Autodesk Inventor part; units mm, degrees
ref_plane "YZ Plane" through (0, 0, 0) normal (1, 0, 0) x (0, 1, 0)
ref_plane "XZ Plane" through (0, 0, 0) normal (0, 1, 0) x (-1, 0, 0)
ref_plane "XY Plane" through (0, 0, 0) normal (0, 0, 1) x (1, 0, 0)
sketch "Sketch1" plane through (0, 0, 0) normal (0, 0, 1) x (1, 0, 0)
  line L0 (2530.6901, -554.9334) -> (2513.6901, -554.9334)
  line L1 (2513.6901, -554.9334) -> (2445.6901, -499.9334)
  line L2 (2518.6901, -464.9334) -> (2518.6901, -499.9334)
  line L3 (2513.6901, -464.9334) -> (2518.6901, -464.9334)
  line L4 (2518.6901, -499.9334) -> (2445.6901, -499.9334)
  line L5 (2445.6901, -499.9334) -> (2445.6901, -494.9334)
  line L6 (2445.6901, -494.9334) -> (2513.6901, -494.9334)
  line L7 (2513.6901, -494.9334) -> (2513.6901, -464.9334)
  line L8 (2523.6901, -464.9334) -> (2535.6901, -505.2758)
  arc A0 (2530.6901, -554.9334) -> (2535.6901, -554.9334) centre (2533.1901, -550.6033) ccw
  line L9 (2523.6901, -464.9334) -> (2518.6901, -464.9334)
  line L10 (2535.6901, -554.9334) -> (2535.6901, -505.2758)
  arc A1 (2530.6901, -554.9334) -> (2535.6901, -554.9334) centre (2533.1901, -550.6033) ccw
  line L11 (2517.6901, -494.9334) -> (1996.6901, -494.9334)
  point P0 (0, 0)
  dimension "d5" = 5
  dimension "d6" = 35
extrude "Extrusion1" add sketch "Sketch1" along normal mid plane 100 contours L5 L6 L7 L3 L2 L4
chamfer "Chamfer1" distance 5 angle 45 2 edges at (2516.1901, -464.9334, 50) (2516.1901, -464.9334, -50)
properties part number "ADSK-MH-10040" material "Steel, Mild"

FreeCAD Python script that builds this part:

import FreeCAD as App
import Part
import Sketcher


def edges_at(feature, points):
    """Names of the edges that pass closest to the given points."""
    edges = feature.Shape.Edges
    near = lambda p: min(range(len(edges)), key=lambda i: edges[i].distToShape(Part.Vertex(*p))[0])
    return sorted({f"Edge{near(p) + 1}" for p in points})


def add_polygon(sketch, points):
    """Adds a closed chain of lines whose ends are joined by coincident constraints."""
    first, n = sketch.GeometryCount, len(points)
    for a, b in zip(points, points[1:] + points[:1]):
        sketch.addGeometry(Part.LineSegment(App.Vector(*a, 0), App.Vector(*b, 0)), False)
    for i in range(n):
        sketch.addConstraint(Sketcher.Constraint("Coincident", first + i, 2, first + (i + 1) % n, 1))

doc = App.newDocument("Part")
body = doc.addObject("PartDesign::Body", "Body")

# Sketch on XY plane
sketch1 = body.newObject("Sketcher::SketchObject", "Sketch")
sketch1.AttachmentSupport = (doc.getObject("XY_Plane"), [""])
sketch1.MapMode = "FlatFace"
add_polygon(sketch1, [(2446, -495), (2446, -500), (2519, -500), (2519, -465), (2514, -465), (2514, -495)])  # lines 0-5
sketch1.addConstraint([
    Sketcher.Constraint("Vertical", 0),
    Sketcher.Constraint("Horizontal", 1),
    Sketcher.Constraint("Vertical", 2),
    Sketcher.Constraint("Horizontal", 3),
    Sketcher.Constraint("Vertical", 4),
    Sketcher.Constraint("Horizontal", 5),
    Sketcher.Constraint("Equal", 3, 0),
    Sketcher.Constraint("DistanceX", 3, 2, 3, 1, 5.0),
    Sketcher.Constraint("DistanceY", 2, 1, 2, 2, 35.0),
    Sketcher.Constraint("DistanceX", 1, 1, 1, 2, 73.0),
    Sketcher.Constraint("DistanceX", -1, 1, 0, 2, 2445.69),
    Sketcher.Constraint("DistanceY", 0, 2, -1, 1, 499.9334),
])
pad1 = body.newObject("PartDesign::Pad", "Pad")
pad1.Profile = sketch1
pad1.Length = 100
pad1.Midplane = True
doc.recompute()

chamfer = body.newObject("PartDesign::Chamfer", "Chamfer")
chamfer.Base = (pad1, edges_at(pad1, [(2516.19, -464.933, 50), (2516.19, -464.933, -50)]))
chamfer.Size = 5

doc.recompute()
